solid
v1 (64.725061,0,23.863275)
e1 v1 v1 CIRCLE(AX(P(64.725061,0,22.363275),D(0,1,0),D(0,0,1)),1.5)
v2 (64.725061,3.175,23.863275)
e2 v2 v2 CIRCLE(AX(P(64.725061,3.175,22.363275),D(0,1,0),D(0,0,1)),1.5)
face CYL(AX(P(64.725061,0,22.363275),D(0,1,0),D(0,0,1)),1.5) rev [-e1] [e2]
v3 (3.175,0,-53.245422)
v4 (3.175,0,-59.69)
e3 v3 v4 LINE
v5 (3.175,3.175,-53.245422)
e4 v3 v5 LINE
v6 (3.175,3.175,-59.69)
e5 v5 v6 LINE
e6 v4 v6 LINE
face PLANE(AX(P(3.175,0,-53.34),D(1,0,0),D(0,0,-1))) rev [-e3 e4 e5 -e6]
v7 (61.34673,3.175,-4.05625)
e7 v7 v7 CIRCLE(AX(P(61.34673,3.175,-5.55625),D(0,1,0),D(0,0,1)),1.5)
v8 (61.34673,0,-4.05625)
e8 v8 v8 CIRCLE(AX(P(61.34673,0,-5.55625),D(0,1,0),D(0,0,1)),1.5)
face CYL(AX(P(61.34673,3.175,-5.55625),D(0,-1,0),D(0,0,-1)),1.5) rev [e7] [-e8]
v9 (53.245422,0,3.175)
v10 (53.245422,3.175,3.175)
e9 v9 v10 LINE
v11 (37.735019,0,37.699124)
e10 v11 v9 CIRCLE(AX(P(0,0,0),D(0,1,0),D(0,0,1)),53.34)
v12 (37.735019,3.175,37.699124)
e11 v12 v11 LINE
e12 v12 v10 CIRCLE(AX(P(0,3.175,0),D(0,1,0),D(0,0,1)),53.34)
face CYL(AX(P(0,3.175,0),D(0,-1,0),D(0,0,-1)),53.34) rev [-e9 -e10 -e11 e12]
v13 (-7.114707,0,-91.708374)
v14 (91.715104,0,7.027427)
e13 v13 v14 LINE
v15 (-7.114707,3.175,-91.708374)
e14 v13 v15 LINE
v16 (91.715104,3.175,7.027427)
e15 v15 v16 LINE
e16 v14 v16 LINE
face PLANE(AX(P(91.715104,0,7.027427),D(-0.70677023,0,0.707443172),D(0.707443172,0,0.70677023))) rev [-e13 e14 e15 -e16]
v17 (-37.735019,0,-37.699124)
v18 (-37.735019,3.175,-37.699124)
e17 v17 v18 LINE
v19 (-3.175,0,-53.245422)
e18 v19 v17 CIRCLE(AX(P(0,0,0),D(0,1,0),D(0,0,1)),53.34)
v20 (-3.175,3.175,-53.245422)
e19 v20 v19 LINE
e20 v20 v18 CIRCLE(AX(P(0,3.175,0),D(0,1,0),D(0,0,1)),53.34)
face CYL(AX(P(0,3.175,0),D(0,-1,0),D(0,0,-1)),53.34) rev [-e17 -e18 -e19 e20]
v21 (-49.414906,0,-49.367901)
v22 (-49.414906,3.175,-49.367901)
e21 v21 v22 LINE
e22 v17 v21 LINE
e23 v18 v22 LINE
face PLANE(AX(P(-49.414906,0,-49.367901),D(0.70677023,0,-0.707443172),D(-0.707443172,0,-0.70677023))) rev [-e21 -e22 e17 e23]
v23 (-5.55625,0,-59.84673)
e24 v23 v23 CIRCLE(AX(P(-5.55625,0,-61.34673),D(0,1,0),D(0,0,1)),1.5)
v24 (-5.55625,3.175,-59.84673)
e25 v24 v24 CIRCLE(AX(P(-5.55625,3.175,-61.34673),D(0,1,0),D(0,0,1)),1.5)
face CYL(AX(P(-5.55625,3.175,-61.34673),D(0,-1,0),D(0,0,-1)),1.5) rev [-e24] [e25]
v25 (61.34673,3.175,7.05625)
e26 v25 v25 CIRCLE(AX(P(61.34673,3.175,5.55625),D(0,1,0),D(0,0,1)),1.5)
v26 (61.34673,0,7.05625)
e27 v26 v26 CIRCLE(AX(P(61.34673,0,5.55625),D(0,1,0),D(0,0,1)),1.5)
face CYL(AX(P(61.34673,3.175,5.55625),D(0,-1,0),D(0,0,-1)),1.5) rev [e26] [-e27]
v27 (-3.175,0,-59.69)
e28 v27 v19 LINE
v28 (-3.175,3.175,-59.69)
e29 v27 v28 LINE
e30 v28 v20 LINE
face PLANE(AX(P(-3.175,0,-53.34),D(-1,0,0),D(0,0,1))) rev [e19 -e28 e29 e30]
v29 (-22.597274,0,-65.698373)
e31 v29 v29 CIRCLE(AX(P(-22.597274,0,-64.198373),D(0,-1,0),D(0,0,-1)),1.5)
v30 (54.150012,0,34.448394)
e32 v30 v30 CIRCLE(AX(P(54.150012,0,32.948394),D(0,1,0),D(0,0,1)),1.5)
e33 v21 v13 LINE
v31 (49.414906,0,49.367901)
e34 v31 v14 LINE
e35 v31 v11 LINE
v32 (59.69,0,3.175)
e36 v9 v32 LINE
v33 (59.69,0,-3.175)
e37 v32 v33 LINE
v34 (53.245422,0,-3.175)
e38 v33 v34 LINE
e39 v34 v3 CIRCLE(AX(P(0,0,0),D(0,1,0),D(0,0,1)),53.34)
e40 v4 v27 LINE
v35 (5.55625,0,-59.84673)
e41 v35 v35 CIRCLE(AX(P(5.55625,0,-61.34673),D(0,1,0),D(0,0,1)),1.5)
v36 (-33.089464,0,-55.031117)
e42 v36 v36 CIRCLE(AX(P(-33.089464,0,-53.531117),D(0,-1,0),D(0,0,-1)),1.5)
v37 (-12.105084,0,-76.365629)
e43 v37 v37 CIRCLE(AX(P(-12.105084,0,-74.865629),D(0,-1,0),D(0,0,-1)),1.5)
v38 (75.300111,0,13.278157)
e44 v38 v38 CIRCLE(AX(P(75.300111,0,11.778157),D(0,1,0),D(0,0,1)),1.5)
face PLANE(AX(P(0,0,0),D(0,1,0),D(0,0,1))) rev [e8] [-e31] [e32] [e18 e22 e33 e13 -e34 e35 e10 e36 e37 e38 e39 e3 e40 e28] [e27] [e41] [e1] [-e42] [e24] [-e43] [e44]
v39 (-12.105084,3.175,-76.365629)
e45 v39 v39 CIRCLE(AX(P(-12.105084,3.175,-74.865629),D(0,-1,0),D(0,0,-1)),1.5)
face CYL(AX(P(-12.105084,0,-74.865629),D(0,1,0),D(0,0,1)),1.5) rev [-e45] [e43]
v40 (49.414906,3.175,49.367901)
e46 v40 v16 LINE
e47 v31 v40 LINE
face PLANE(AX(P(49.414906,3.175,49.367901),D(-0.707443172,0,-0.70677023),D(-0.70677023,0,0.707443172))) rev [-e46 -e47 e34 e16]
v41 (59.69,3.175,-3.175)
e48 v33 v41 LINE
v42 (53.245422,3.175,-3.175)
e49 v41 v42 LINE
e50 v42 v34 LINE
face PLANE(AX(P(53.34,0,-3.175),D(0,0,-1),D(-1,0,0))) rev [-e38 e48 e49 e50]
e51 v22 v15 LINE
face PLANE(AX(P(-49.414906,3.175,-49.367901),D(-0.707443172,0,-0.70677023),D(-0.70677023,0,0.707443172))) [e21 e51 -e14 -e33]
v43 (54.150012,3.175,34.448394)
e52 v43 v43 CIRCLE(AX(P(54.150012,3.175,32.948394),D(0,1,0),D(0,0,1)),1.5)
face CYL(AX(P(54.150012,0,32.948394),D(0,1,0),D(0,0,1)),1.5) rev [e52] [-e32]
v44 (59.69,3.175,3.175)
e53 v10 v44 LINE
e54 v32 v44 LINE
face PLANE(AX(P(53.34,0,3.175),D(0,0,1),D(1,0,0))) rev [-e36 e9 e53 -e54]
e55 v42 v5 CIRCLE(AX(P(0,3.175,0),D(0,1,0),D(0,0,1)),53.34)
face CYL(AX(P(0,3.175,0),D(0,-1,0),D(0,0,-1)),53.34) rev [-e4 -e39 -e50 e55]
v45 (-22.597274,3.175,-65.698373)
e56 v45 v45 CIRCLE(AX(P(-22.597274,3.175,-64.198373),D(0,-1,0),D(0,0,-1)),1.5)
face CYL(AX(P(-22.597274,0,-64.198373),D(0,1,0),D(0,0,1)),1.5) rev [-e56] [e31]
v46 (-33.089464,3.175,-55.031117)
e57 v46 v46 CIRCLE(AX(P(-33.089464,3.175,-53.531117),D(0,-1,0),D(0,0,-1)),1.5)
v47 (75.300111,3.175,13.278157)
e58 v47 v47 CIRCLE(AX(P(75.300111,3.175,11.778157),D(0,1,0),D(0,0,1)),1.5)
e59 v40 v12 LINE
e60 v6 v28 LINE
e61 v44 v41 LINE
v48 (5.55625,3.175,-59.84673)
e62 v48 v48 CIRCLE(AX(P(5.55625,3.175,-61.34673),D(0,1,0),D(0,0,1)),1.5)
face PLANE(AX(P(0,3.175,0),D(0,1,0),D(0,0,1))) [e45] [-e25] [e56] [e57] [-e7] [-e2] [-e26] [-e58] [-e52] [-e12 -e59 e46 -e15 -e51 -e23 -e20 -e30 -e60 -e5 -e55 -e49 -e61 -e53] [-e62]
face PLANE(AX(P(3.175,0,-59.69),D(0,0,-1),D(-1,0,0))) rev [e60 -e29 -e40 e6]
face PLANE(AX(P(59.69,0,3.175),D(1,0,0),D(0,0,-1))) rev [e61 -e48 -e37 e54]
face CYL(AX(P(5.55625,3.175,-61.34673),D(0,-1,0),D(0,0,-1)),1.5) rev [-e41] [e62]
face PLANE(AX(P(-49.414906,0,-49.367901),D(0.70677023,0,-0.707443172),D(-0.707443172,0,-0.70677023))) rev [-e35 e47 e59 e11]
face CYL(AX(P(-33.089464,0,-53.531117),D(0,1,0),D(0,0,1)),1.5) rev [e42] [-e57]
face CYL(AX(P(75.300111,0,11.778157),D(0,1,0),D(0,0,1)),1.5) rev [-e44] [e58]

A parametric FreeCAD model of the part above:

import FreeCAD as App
import Part
import Sketcher

V = App.Vector
Q = App.Units.Quantity


def add_polygon(sketch, points):
    """Adds a closed chain of lines whose ends are joined by coincident constraints."""
    first, n = sketch.GeometryCount, len(points)
    for a, b in zip(points, points[1:] + points[:1]):
        sketch.addGeometry(Part.LineSegment(App.Vector(*a, 0), App.Vector(*b, 0)), False)
    for i in range(n):
        sketch.addConstraint(Sketcher.Constraint("Coincident", first + i, 2, first + (i + 1) % n, 1))

doc = App.newDocument("Part")
body = doc.addObject("PartDesign::Body", "Body")

# Sketch on XZ plane
sketch1 = body.newObject("Sketcher::SketchObject", "Sketch")
sketch1.AttachmentSupport = (doc.getObject("XZ_Plane"), [""])
sketch1.MapMode = "FlatFace"
add_polygon(sketch1, [(-98.782806, 0.047005), (0.047005, 98.782806), (98.782806, -0.047005), (-0.047005, -98.782806)])  # lines 0-3
sketch1.addGeometry(Part.Circle(V(5.55625, 61.34673, 0), V(0, 0, 1), 1.5), False)  # 4
sketch1.addGeometry(Part.Circle(V(61.34673, 5.55625, 0), V(0, 0, 1), 1.5), False)  # 5
sketch1.addGeometry(Part.Circle(V(-5.55625, 61.34673, 0), V(0, 0, 1), 1.5), False)  # 6
sketch1.addGeometry(Part.Circle(V(-61.34673, 5.55625, 0), V(0, 0, 1), 1.5), False)  # 7
sketch1.addGeometry(Part.Circle(V(61.34673, -5.55625, 0), V(0, 0, 1), 1.5), False)  # 8
sketch1.addGeometry(Part.Circle(V(5.55625, -61.34673, 0), V(0, 0, 1), 1.5), False)  # 9
sketch1.addGeometry(Part.Circle(V(0, 0, 0), V(0, 0, 1), 53.34), False)  # 10
sketch1.addGeometry(Part.Circle(V(-61.34673, -5.55625, 0), V(0, 0, 1), 1.5), False)  # 11
sketch1.addGeometry(Part.Circle(V(-5.55625, -61.34673, 0), V(0, 0, 1), 1.5), False)  # 12
sketch1.addConstraint([
    Sketcher.Constraint("Coincident", 10, 3, -1, 1),
    Sketcher.Constraint("Equal", 4, 5),
    Sketcher.Constraint("Equal", 5, 6),
    Sketcher.Constraint("Equal", 6, 7),
    Sketcher.Constraint("Equal", 7, 8),
    Sketcher.Constraint("Equal", 8, 9),
    Sketcher.Constraint("Equal", 9, 11),
    Sketcher.Constraint("Equal", 11, 12),
    Sketcher.Constraint("Symmetric", 7, 3, 8, 3, -1, 1),
    Sketcher.Constraint("Symmetric", 6, 3, 9, 3, -1, 1),
    Sketcher.Constraint("Symmetric", 5, 3, 11, 3, -1, 1),
    Sketcher.Constraint("Symmetric", 4, 3, 12, 3, -1, 1),
    Sketcher.Constraint("Symmetric", 0, 2, 2, 2, -1, 1),
    Sketcher.Constraint("Symmetric", 1, 2, 3, 2, -1, 1),
    Sketcher.Constraint("Symmetric", 4, 3, 6, 3, -2),
    Sketcher.Constraint("Symmetric", 5, 3, 7, 3, -2),
    Sketcher.Constraint("Perpendicular", 0, 1),
    Sketcher.Constraint("Equal", 0, 1),
    Sketcher.Constraint("Diameter", 10, Q("4.2 in")),
    Sketcher.Constraint("Distance", 0, Q("5.5 in")),
    Sketcher.Constraint("Diameter", 4, Q("3 mm")),
    Sketcher.Constraint("DistanceX", -1, 1, 4, 3, Q("0.21875 in")),
    Sketcher.Constraint("DistanceY", -1, 1, 5, 3, Q("0.21875 in")),
    Sketcher.Constraint("DistanceY", -1, 1, 4, 3, Q("61.34673 mm")),
    Sketcher.Constraint("DistanceX", -1, 1, 5, 3, Q("61.34673 mm")),
    Sketcher.Constraint("DistanceX", -1, 1, 0, 2, Q("0.047005 mm")),
])
pad1 = body.newObject("PartDesign::Pad", "Pad")
pad1.Profile = sketch1
pad1.Length = Q("0.125 in")
pad1.Reversed = True

# Sketch on XZ plane
sketch2 = body.newObject("Sketcher::SketchObject", "Sketch001")
sketch2.AttachmentSupport = (doc.getObject("XZ_Plane"), [""])
sketch2.MapMode = "FlatFace"
sketch2.AttachmentOffset = App.Placement(V(0, 0, -0.125 * 25.4), App.Rotation())
add_polygon(sketch2, [(3.175, -59.69), (-3.175, -59.69), (-3.175, -52.244538), (3.175, -52.244538)])  # lines 0-3
add_polygon(sketch2, [(59.69, 3.175), (59.69, -3.175), (52.244538, -3.175), (52.244538, 3.175)])  # lines 4-7
add_polygon(sketch2, [(-3.175, 59.69), (3.175, 59.69), (3.175, 52.244538), (-3.175, 52.244538)])  # lines 8-11
add_polygon(sketch2, [(-59.69, -3.175), (-59.69, 3.175), (-52.244538, 3.175), (-52.244538, -3.175)])  # lines 12-15
sketch2.addConstraint([
    Sketcher.Constraint("Horizontal", 0),
    Sketcher.Constraint("Vertical", 1),
    Sketcher.Constraint("Horizontal", 2),
    Sketcher.Constraint("Vertical", 3),
    Sketcher.Constraint("Vertical", 4),
    Sketcher.Constraint("Horizontal", 5),
    Sketcher.Constraint("Vertical", 6),
    Sketcher.Constraint("Horizontal", 7),
    Sketcher.Constraint("Horizontal", 8),
    Sketcher.Constraint("Vertical", 9),
    Sketcher.Constraint("Horizontal", 10),
    Sketcher.Constraint("Vertical", 11),
    Sketcher.Constraint("Vertical", 12),
    Sketcher.Constraint("Horizontal", 13),
    Sketcher.Constraint("Vertical", 14),
    Sketcher.Constraint("Horizontal", 15),
    Sketcher.Constraint("Symmetric", 0, 2, 8, 2, -1, 1),
    Sketcher.Constraint("Symmetric", 2, 2, 10, 2, -1, 1),
    Sketcher.Constraint("Symmetric", 4, 2, 12, 2, -1, 1),
    Sketcher.Constraint("Symmetric", 6, 2, 14, 2, -1, 1),
    Sketcher.Constraint("Horizontal", 7, 2, 12, 2),
    Sketcher.Constraint("Vertical", 3, 2, 8, 2),
    Sketcher.Constraint("Equal", 15, 1),
    Sketcher.Constraint("Equal", 10, 4),
    Sketcher.Constraint("DistanceX", 0, 2, 0, 1, Q("0.25 in")),
    Sketcher.Constraint("DistanceY", 0, 2, -1, 1, Q("2.35 in")),
    Sketcher.Constraint("DistanceX", -1, 1, 4, 2, Q("2.35 in")),
    Sketcher.Constraint("DistanceX", 5, 2, 5, 1, Q("7.445462 mm")),
])
pocket1 = body.newObject("PartDesign::Pocket", "Pocket")
pocket1.Profile = sketch2
pocket1.Type = "ThroughAll"
pocket1.Reversed = True

# Sketch on XZ plane
sketch3 = body.newObject("Sketcher::SketchObject", "Sketch002")
sketch3.AttachmentSupport = (doc.getObject("XZ_Plane"), [""])
sketch3.MapMode = "FlatFace"
sketch3.AttachmentOffset = App.Placement(V(0, 0, -0.125 * 25.4), App.Rotation())
add_polygon(sketch3, [(49.414906, 49.367901), (-49.414906, -49.367901), (-98.782806, 0.047005), (0.047005, 98.782806)])  # lines 0-3
sketch3.addConstraint([
    Sketcher.Constraint("Symmetric", 0, 2, 3, 2, -1, 1),
    Sketcher.Constraint("Perpendicular", 0, 1),
    Sketcher.Constraint("Perpendicular", 1, 2),
    Sketcher.Constraint("Perpendicular", 2, 3),
    Sketcher.Constraint("Distance", 0, Q("5.5 in")),
    Sketcher.Constraint("Distance", 1, Q("2.75 in")),
    Sketcher.Constraint("DistanceY", 0, 2, -1, 1, Q("49.367901 mm")),
])
pocket2 = body.newObject("PartDesign::Pocket", "Pocket001")
pocket2.Profile = sketch3
pocket2.Type = "ThroughAll"
pocket2.Reversed = True

# Sketch on XZ plane
sketch4 = body.newObject("Sketcher::SketchObject", "Sketch003")
sketch4.AttachmentSupport = (doc.getObject("XZ_Plane"), [""])
sketch4.MapMode = "FlatFace"
sketch4.AttachmentOffset = App.Placement(V(0, 0, -0.125 * 25.4), App.Rotation())
add_polygon(sketch4, [(91.715104, 7.027427), (98.782806, -0.047005), (-0.047005, -98.782806), (-7.114707, -91.708374)])  # lines 0-3
sketch4.addConstraint([
    Sketcher.Constraint("Perpendicular", 0, 1),
    Sketcher.Constraint("Perpendicular", 1, 2),
    Sketcher.Constraint("Perpendicular", 2, 3),
    Sketcher.Constraint("Distance", 1, Q("5.5 in")),
    Sketcher.Constraint("Distance", 0, Q("10 mm")),
    Sketcher.Constraint("DistanceY", 1, 2, 0, 2, Q("98.735801 mm")),
    Sketcher.Constraint("DistanceX", -1, 1, 0, 2, Q("98.782806 mm")),
    Sketcher.Constraint("DistanceY", 0, 2, -1, 1, Q("0.047005 mm")),
])
pocket3 = body.newObject("PartDesign::Pocket", "Pocket002")
pocket3.Profile = sketch4
pocket3.Type = "ThroughAll"
pocket3.Reversed = True

# Sketch on XZ plane
sketch5 = body.newObject("Sketcher::SketchObject", "Sketch004")
sketch5.AttachmentSupport = (doc.getObject("XZ_Plane"), [""])
sketch5.MapMode = "FlatFace"
sketch5.AttachmentOffset = App.Placement(V(0, 0, -0.125 * 25.4), App.Rotation())
sketch5.addGeometry([
    Part.Circle(V(64.725061, 22.363275, 0), V(0, 0, 1), 1.5),  # 0
    Part.Circle(V(75.300111, 11.778157, 0), V(0, 0, 1), 1.5),  # 1
    Part.Circle(V(-12.105084, -74.865629, 0), V(0, 0, 1), 1.5),  # 2
    Part.Circle(V(-22.597274, -64.198373, 0), V(0, 0, 1), 1.5),  # 3
    Part.Circle(V(54.150012, 32.948394, 0), V(0, 0, 1), 1.5),  # 4
    Part.Circle(V(-33.089464, -53.531117, 0), V(0, 0, 1), 1.5),  # 5
], False)
sketch5.addConstraint([
    Sketcher.Constraint("Equal", 0, 1),
    Sketcher.Constraint("Equal", 1, 2),
    Sketcher.Constraint("Equal", 2, 3),
    Sketcher.Constraint("Equal", 3, 4),
    Sketcher.Constraint("Equal", 4, 5),
    Sketcher.Constraint("Diameter", 0, Q("3 mm")),
    Sketcher.Constraint("DistanceX", 4, 3, 1, 3, Q("21.150099 mm")),
    Sketcher.Constraint("DistanceX", -1, 1, 0, 3, Q("64.725061 mm")),
    Sketcher.Constraint("DistanceX", -1, 1, 1, 3, Q("75.300111 mm")),
    Sketcher.Constraint("DistanceY", 2, 3, -1, 1, Q("74.865629 mm")),
    Sketcher.Constraint("DistanceY", 1, 3, 0, 3, Q("10.585118 mm")),
    Sketcher.Constraint("DistanceX", 3, 3, 2, 3, Q("10.49219 mm")),
    Sketcher.Constraint("DistanceY", 3, 3, 0, 3, Q("86.561648 mm")),
    Sketcher.Constraint("DistanceY", 0, 3, 4, 3, Q("10.585118 mm")),
    Sketcher.Constraint("DistanceX", 5, 3, 3, 3, Q("10.49219 mm")),
    Sketcher.Constraint("DistanceY", 5, 3, 4, 3, Q("86.47951 mm")),
    Sketcher.Constraint("DistanceY", -1, 1, 0, 3, Q("22.363275 mm")),
    Sketcher.Constraint("DistanceX", 2, 3, -1, 1, Q("12.105084 mm")),
])
pocket4 = body.newObject("PartDesign::Pocket", "Pocket003")
pocket4.Profile = sketch5
pocket4.Type = "ThroughAll"
pocket4.Reversed = True

doc.recompute()
